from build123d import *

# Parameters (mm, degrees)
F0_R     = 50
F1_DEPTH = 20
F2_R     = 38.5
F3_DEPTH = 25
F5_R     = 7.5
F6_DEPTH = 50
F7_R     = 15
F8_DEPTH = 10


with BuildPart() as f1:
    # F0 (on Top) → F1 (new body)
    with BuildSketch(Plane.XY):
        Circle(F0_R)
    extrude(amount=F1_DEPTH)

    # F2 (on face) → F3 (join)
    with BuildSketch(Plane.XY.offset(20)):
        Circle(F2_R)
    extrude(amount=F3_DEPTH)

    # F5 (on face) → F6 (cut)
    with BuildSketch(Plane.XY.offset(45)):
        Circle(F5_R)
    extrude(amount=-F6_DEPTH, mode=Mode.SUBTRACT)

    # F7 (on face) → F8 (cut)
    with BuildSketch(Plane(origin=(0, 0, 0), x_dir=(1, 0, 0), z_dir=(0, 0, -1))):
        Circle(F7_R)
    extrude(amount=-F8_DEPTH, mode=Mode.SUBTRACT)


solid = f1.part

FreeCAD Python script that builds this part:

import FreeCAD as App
import Part
import Sketcher
Q = App.Units.Quantity

doc = App.newDocument("Part")
body = doc.addObject("PartDesign::Body", "Body")

# Sketch on XY plane
sketch1 = body.newObject("Sketcher::SketchObject", "Sketch")
sketch1.AttachmentSupport = (doc.getObject("XY_Plane"), [""])
sketch1.MapMode = "FlatFace"
sketch1.addGeometry(Part.Circle(App.Vector(0, 0, 0), App.Vector(0, 0, 1), 50), False)
sketch1.addConstraint(Sketcher.Constraint("Coincident", 0, 3, -1, 1))
sketch1.addConstraint(Sketcher.Constraint("Diameter", 0, Q("100 mm")))
pad1 = body.newObject("PartDesign::Pad", "Pad")
pad1.Profile = sketch1
pad1.Length = 20

# Sketch on XY plane
sketch2 = body.newObject("Sketcher::SketchObject", "Sketch001")
sketch2.AttachmentSupport = (doc.getObject("XY_Plane"), [""])
sketch2.MapMode = "FlatFace"
sketch2.AttachmentOffset = App.Placement(App.Vector(0, 0, 20), App.Rotation())
sketch2.addGeometry(Part.Circle(App.Vector(0, 0, 0), App.Vector(0, 0, 1), 38.5), False)
sketch2.addConstraint(Sketcher.Constraint("Coincident", 0, 3, -1, 1))
sketch2.addConstraint(Sketcher.Constraint("Diameter", 0, Q("77 mm")))
pad2 = body.newObject("PartDesign::Pad", "Pad001")
pad2.Profile = sketch2
pad2.Length = 25

# Sketch on XY plane
sketch3 = body.newObject("Sketcher::SketchObject", "Sketch002")
sketch3.AttachmentSupport = (doc.getObject("XY_Plane"), [""])
sketch3.MapMode = "FlatFace"
sketch3.AttachmentOffset = App.Placement(App.Vector(0, 0, 45), App.Rotation())
sketch3.addGeometry(Part.Circle(App.Vector(0, 0, 0), App.Vector(0, 0, 1), 7.5), False)
sketch3.addConstraint(Sketcher.Constraint("Coincident", 0, 3, -1, 1))
sketch3.addConstraint(Sketcher.Constraint("Diameter", 0, Q("15 mm")))
pocket1 = body.newObject("PartDesign::Pocket", "Pocket")
pocket1.Profile = sketch3
pocket1.Length = 50

# Sketch on XY plane
sketch4 = body.newObject("Sketcher::SketchObject", "Sketch003")
sketch4.AttachmentSupport = (doc.getObject("XY_Plane"), [""])
sketch4.MapMode = "FlatFace"
sketch4.addGeometry(Part.Circle(App.Vector(0, 0, 0), App.Vector(0, 0, 1), 15), False)
sketch4.addConstraint(Sketcher.Constraint("Coincident", 0, 3, -1, 1))
sketch4.addConstraint(Sketcher.Constraint("Diameter", 0, Q("30 mm")))
pocket2 = body.newObject("PartDesign::Pocket", "Pocket001")
pocket2.Profile = sketch4
pocket2.Length = 10
pocket2.Reversed = True

doc.recompute()
